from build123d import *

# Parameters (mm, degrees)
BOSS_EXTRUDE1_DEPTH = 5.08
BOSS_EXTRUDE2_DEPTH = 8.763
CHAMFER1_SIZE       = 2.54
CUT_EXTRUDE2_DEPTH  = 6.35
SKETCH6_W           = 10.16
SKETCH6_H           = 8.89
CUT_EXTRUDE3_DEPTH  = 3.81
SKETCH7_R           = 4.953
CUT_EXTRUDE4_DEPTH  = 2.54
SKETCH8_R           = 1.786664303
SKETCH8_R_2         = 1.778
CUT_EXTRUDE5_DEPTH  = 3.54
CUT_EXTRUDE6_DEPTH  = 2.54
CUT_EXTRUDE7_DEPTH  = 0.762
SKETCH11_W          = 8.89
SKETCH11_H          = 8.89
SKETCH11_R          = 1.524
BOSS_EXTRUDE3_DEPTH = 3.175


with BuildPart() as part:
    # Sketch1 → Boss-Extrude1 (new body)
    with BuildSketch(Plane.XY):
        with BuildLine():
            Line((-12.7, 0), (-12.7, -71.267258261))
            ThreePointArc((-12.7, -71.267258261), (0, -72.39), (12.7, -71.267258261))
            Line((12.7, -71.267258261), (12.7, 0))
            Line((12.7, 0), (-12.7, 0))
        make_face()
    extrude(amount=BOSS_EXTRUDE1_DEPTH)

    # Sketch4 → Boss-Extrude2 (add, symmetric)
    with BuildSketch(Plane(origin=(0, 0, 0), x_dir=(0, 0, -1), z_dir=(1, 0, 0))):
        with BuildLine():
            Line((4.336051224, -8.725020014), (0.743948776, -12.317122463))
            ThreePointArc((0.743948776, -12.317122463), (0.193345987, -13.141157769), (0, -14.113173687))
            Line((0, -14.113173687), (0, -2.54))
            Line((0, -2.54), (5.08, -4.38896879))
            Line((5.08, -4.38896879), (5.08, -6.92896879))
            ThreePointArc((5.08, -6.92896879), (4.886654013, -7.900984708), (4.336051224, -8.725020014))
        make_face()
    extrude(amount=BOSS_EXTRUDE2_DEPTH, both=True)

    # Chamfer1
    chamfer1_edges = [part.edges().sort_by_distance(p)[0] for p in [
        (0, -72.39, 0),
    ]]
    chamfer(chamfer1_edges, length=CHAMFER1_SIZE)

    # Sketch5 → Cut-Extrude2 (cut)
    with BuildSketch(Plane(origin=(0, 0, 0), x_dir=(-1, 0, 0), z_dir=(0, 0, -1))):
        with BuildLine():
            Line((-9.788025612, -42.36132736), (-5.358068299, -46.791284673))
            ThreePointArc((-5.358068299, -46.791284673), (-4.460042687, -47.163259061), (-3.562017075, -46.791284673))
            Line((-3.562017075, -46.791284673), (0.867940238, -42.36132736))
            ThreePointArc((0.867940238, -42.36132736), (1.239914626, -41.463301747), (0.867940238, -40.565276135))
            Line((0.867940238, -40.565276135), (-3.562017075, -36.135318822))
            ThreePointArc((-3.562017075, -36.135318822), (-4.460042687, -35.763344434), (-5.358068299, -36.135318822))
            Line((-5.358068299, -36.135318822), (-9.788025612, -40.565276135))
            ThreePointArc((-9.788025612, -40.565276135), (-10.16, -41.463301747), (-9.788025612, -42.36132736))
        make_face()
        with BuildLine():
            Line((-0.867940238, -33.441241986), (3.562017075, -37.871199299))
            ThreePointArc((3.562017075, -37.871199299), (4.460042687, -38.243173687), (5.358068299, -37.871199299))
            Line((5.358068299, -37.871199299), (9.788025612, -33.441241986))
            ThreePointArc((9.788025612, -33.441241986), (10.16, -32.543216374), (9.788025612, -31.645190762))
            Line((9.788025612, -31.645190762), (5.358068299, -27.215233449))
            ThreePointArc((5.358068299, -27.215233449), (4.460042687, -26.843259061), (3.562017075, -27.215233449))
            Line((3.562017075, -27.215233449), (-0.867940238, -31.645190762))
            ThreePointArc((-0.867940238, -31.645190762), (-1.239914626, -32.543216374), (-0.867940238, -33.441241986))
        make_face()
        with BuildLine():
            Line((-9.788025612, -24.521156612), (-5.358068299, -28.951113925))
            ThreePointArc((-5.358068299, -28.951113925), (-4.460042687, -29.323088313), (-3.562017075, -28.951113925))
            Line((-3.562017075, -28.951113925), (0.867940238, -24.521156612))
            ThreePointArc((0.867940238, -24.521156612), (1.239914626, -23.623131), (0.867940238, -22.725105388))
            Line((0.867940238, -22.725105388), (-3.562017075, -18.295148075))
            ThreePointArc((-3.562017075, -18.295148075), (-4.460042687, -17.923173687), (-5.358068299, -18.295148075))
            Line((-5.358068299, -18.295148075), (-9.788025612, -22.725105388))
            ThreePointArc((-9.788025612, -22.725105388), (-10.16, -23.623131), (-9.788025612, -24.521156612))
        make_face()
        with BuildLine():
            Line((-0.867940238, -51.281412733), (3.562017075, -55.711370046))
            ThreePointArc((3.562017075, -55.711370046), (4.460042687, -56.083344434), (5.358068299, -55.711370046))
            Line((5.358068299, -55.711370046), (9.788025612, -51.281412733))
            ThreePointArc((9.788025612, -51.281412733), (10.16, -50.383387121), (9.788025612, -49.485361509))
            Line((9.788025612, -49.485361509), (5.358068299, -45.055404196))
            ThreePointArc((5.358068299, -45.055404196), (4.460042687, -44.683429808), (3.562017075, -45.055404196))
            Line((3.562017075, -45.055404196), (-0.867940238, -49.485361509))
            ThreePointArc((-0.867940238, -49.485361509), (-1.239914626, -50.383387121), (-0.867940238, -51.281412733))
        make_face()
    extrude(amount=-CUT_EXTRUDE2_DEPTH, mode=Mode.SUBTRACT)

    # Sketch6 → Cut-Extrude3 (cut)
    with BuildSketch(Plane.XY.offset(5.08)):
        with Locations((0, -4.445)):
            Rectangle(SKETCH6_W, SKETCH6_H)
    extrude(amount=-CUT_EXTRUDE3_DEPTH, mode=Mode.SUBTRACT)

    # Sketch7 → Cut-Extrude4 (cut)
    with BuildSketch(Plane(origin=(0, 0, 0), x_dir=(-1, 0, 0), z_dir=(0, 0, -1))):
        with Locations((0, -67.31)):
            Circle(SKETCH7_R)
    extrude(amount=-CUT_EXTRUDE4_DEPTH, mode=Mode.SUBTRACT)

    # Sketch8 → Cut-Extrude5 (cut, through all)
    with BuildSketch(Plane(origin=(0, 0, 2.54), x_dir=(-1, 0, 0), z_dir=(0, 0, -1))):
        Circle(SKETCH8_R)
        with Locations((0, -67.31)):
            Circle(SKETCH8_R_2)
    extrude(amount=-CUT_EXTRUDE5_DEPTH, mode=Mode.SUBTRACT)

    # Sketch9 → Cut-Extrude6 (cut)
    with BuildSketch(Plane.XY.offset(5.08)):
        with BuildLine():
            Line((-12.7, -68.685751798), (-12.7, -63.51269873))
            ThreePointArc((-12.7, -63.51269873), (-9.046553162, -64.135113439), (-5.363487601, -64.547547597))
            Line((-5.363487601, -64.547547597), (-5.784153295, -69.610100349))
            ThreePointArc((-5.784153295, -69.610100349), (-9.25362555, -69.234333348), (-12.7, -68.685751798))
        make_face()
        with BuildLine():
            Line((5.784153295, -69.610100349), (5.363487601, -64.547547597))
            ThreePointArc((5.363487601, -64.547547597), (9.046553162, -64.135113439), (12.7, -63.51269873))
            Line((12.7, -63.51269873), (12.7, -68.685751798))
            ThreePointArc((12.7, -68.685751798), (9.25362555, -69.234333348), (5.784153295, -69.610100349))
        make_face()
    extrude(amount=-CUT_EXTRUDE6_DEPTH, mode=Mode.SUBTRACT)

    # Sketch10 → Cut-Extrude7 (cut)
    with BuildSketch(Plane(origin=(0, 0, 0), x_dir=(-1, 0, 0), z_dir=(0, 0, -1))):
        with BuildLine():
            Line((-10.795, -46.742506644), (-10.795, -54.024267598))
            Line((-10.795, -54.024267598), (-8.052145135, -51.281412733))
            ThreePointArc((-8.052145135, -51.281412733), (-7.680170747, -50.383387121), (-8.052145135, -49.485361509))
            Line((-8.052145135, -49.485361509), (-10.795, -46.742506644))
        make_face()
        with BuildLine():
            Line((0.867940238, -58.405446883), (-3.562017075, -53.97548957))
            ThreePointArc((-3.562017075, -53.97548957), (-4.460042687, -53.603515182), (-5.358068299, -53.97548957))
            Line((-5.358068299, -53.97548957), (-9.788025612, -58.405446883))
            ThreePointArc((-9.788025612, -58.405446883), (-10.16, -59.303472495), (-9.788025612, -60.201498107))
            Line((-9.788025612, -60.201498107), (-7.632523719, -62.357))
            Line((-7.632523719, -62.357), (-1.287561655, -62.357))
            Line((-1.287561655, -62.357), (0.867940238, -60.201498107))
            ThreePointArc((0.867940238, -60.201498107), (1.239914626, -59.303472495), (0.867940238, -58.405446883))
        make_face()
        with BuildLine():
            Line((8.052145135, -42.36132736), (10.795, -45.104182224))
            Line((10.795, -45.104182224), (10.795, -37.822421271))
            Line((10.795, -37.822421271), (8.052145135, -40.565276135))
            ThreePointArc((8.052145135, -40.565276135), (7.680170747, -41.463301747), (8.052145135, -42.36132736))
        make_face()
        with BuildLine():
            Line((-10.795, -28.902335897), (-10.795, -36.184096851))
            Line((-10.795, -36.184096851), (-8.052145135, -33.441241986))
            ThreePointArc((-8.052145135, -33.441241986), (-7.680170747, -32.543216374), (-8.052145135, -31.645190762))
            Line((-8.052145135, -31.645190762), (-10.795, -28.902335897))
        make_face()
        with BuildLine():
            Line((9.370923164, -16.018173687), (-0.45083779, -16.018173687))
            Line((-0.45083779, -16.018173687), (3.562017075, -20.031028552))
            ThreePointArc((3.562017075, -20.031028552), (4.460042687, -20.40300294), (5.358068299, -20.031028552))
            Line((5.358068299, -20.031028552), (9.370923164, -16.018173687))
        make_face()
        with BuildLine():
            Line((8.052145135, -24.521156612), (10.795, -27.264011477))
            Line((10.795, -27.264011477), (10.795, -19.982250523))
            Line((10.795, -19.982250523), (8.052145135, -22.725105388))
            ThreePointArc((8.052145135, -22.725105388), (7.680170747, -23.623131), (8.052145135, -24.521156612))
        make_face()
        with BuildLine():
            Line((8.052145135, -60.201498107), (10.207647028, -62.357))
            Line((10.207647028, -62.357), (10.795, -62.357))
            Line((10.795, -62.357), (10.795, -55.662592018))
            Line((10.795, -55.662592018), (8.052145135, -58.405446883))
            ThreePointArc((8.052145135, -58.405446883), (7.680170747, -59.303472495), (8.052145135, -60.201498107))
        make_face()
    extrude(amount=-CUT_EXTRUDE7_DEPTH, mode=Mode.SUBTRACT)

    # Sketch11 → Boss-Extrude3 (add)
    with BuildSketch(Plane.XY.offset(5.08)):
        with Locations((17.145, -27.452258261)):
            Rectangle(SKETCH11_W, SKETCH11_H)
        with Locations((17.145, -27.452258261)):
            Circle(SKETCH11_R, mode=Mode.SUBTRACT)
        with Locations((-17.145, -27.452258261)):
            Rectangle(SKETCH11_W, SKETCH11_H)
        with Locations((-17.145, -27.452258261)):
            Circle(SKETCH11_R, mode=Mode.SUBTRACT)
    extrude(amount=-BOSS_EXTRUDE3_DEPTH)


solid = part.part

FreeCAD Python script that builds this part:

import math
import FreeCAD as App
import Part
import Sketcher

V = App.Vector
Q = App.Units.Quantity


def edges_at(feature, points):
    """Names of the edges that pass closest to the given points."""
    edges = feature.Shape.Edges
    near = lambda p: min(range(len(edges)), key=lambda i: edges[i].distToShape(Part.Vertex(*p))[0])
    return sorted({f"Edge{near(p) + 1}" for p in points})

doc = App.newDocument("Part")
params = doc.addObject("Spreadsheet::Sheet", "Params")
for row, (alias, value) in enumerate([
    ("sketch1_width", "1 in"),
    ("sketch1_radius", "2.85 in"),
    ("pad1_length", "0.2 in"),
    ("sketch2_radius", "0.1 in"),
    ("sketch2_width", "0.1 in"),
    ("pad2_length", "0.69 in"),
    ("chamfer_size", "0.1 in"),
    ("sketch3_radius", "0.05 in"),
    ("pocket1_length", "0.25 in"),
    ("sketch4_width", "0.4 in"),
    ("sketch4_height", "0.35 in"),
    ("pocket2_length", "0.15 in"),
    ("sketch5_diameter", "0.39 in"),
    ("pocket3_length", "0.1 in"),
    ("sketch6_diameter", "0.14 in"),
    ("sketch7_radius", "2.75 in"),
    ("sketch7_radius2", "2.55 in"),
    ("pocket5_length", "0.1 in"),
    ("sketch8_radius", "0.05 in"),
    ("pocket6_length", "0.03 in"),
    ("sketch9_diameter", "0.12 in"),
    ("sketch9_width", "0.35 in"),
    ("pad3_length", "0.125 in"),
], start=1):
    params.set(f"A{row}", alias)
    params.set(f"B{row}", "=" + value)
    params.setAlias(f"B{row}", alias)

body = doc.addObject("PartDesign::Body", "Body")

# Sketch on XY plane
sketch1 = body.newObject("Sketcher::SketchObject", "Sketch")
sketch1.AttachmentSupport = (doc.getObject("XY_Plane"), [""])
sketch1.MapMode = "FlatFace"
sketch1.addGeometry(Part.LineSegment(V(-13, 0, 0), V(-13, -71, 0)), False)
sketch1.addGeometry(Part.ArcOfCircle(Part.Circle(V(0, 0, 0), V(0, 0, 1), 72), math.radians(-100), math.radians(-80)), False)
sketch1.addGeometry(Part.LineSegment(V(13, -71, 0), V(13, 0, 0)), False)
sketch1.addGeometry(Part.LineSegment(V(13, 0, 0), V(-13, 0, 0)), False)
sketch1.addConstraint(Sketcher.Constraint("Coincident", 0, 2, 1, 1))
sketch1.addConstraint(Sketcher.Constraint("Coincident", 1, 2, 2, 1))
sketch1.addConstraint(Sketcher.Constraint("Coincident", 2, 2, 3, 1))
sketch1.addConstraint(Sketcher.Constraint("Coincident", 3, 2, 0, 1))
sketch1.addConstraint(Sketcher.Constraint("Vertical", 0))
sketch1.addConstraint(Sketcher.Constraint("Vertical", 2))
sketch1.addConstraint(Sketcher.Constraint("Horizontal", 3))
sketch1.addConstraint(Sketcher.Constraint("Coincident", 1, 3, -1, 1))
sketch1.addConstraint(Sketcher.Constraint("Symmetric", 2, 2, 3, 2, -1, 1))
sketch1.addConstraint(Sketcher.Constraint("DistanceX", 3, 2, 3, 1, Q("1 in")))
sketch1.addConstraint(Sketcher.Constraint("Radius", 1, Q("2.85 in")))
sketch1.setExpression("Constraints[9]", "Params.sketch1_width")
sketch1.setExpression("Constraints[10]", "Params.sketch1_radius")
pad1 = body.newObject("PartDesign::Pad", "Pad")
pad1.Profile = sketch1
pad1.setExpression("Length", "Params.pad1_length")

# Sketch on YZ plane
sketch2 = body.newObject("Sketcher::SketchObject", "Sketch001")
sketch2.AttachmentSupport = (doc.getObject("YZ_Plane"), [""])
sketch2.MapMode = "FlatFace"
sketch2.addGeometry(Part.LineSegment(V(-12.3, -0.7, 0), V(-8.7, -4.3, 0)), False)
sketch2.addGeometry(Part.ArcOfCircle(Part.Circle(V(-6.9, -2.5, 0), V(0, 0, 1), 2.5), math.radians(-135), math.radians(-90)), False)
sketch2.addGeometry(Part.LineSegment(V(-6.9, -5.1, 0), V(-4.4, -5.1, 0)), False)
sketch2.addGeometry(Part.LineSegment(V(-4.4, -5.1, 0), V(-2.5, 0, 0)), False)
sketch2.addGeometry(Part.LineSegment(V(-2.5, 0, 0), V(-14.1, 0, 0)), False)
sketch2.addGeometry(Part.ArcOfCircle(Part.Circle(V(-14.1, -2.5, 0), V(0, 0, 1), 2.5), math.radians(45), math.radians(90)), False)
sketch2.addConstraint(Sketcher.Constraint("Tangent", 0, 2, 1, 1))
sketch2.addConstraint(Sketcher.Constraint("Tangent", 1, 2, 2, 1))
sketch2.addConstraint(Sketcher.Constraint("Coincident", 2, 2, 3, 1))
sketch2.addConstraint(Sketcher.Constraint("Coincident", 3, 2, 4, 1))
sketch2.addConstraint(Sketcher.Constraint("Tangent", 4, 2, 5, 2))
sketch2.addConstraint(Sketcher.Constraint("Tangent", 5, 1, 0, 1))
sketch2.addConstraint(Sketcher.Constraint("Horizontal", 2))
sketch2.addConstraint(Sketcher.Constraint("Horizontal", 4))
sketch2.addConstraint(Sketcher.Constraint("Equal", 1, 5))
sketch2.addConstraint(Sketcher.Constraint("PointOnObject", 3, 2, -1))
sketch2.addConstraint(Sketcher.Constraint("Horizontal", 1, 3, 5, 3))
sketch2.addConstraint(Sketcher.Constraint("Radius", 1, Q("0.1 in")))
sketch2.addConstraint(Sketcher.Constraint("DistanceX", 2, 1, 2, 2, Q("0.1 in")))
sketch2.addConstraint(Sketcher.Constraint("Angle", 0, Q("-45 deg")))
sketch2.addConstraint(Sketcher.Constraint("Angle", 3, Q("70 deg")))
sketch2.addConstraint(Sketcher.Constraint("DistanceX", 3, 2, -1, 1, Q("0.1 in")))
sketch2.setExpression("Constraints[11]", "Params.sketch2_radius")
sketch2.setExpression("Constraints[12]", "Params.sketch2_width")
pad2 = body.newObject("PartDesign::Pad", "Pad001")
pad2.Profile = sketch2
pad2.setExpression("Length", "Params.pad2_length")
pad2.Midplane = True
doc.recompute()

chamfer = body.newObject("PartDesign::Chamfer", "Chamfer")
chamfer.Base = (pad2, edges_at(pad2, [(0, -72.39, 0)]))
chamfer.setExpression("Size", "Params.chamfer_size")

# Sketch on XY plane
sketch3 = body.newObject("Sketcher::SketchObject", "Sketch002")
sketch3.AttachmentSupport = (doc.getObject("XY_Plane"), [""])
sketch3.MapMode = "FlatFace"
sketch3.addGeometry(Part.LineSegment(V(9.8, -42.4, 0), V(5.4, -46.8, 0)), False)
sketch3.addGeometry(Part.ArcOfCircle(Part.Circle(V(4.5, -45.9, 0), V(0, 0, 1), 1.3), math.radians(-135), math.radians(-45)), False)
sketch3.addGeometry(Part.LineSegment(V(3.6, -46.8, 0), V(-0.9, -42.4, 0)), False)
sketch3.addGeometry(Part.ArcOfCircle(Part.Circle(V(0, -41.5, 0), V(0, 0, 1), 1.3), math.radians(135), math.radians(225)), False)
sketch3.addGeometry(Part.LineSegment(V(-0.9, -40.6, 0), V(3.6, -36.1, 0)), False)
sketch3.addGeometry(Part.ArcOfCircle(Part.Circle(V(4.5, -37, 0), V(0, 0, 1), 1.3), math.radians(45), math.radians(135)), False)
sketch3.addGeometry(Part.LineSegment(V(5.4, -36.1, 0), V(9.8, -40.6, 0)), False)
sketch3.addGeometry(Part.ArcOfCircle(Part.Circle(V(8.9, -41.5, 0), V(0, 0, 1), 1.3), math.radians(-45), math.radians(45)), False)
sketch3.addGeometry(Part.LineSegment(V(0.9, -33.4, 0), V(-3.6, -37.9, 0)), False)
sketch3.addGeometry(Part.ArcOfCircle(Part.Circle(V(-4.5, -37, 0), V(0, 0, 1), 1.3), math.radians(-135), math.radians(-45)), False)
sketch3.addGeometry(Part.LineSegment(V(-5.4, -37.9, 0), V(-9.8, -33.4, 0)), False)
sketch3.addGeometry(Part.ArcOfCircle(Part.Circle(V(-8.9, -32.5, 0), V(0, 0, 1), 1.3), math.radians(135), math.radians(225)), False)
sketch3.addGeometry(Part.LineSegment(V(-9.8, -31.6, 0), V(-5.4, -27.2, 0)), False)
sketch3.addGeometry(Part.ArcOfCircle(Part.Circle(V(-4.5, -28.1, 0), V(0, 0, 1), 1.3), math.radians(45), math.radians(135)), False)
sketch3.addGeometry(Part.LineSegment(V(-3.6, -27.2, 0), V(0.9, -31.6, 0)), False)
sketch3.addGeometry(Part.ArcOfCircle(Part.Circle(V(0, -32.5, 0), V(0, 0, 1), 1.3), math.radians(-45), math.radians(45)), False)
sketch3.addGeometry(Part.LineSegment(V(9.8, -24.5, 0), V(5.4, -29, 0)), False)
sketch3.addGeometry(Part.ArcOfCircle(Part.Circle(V(4.5, -28.1, 0), V(0, 0, 1), 1.3), math.radians(-135), math.radians(-45)), False)
sketch3.addGeometry(Part.LineSegment(V(3.6, -29, 0), V(-0.9, -24.5, 0)), False)
sketch3.addGeometry(Part.ArcOfCircle(Part.Circle(V(0, -23.6, 0), V(0, 0, 1), 1.3), math.radians(135), math.radians(225)), False)
sketch3.addGeometry(Part.LineSegment(V(-0.9, -22.7, 0), V(3.6, -18.3, 0)), False)
sketch3.addGeometry(Part.ArcOfCircle(Part.Circle(V(4.5, -19.2, 0), V(0, 0, 1), 1.3), math.radians(45), math.radians(135)), False)
sketch3.addGeometry(Part.LineSegment(V(5.4, -18.3, 0), V(9.8, -22.7, 0)), False)
sketch3.addGeometry(Part.ArcOfCircle(Part.Circle(V(8.9, -23.6, 0), V(0, 0, 1), 1.3), math.radians(-45), math.radians(45)), False)
sketch3.addGeometry(Part.LineSegment(V(0.9, -51.3, 0), V(-3.6, -55.7, 0)), False)
sketch3.addGeometry(Part.ArcOfCircle(Part.Circle(V(-4.5, -54.8, 0), V(0, 0, 1), 1.3), math.radians(-135), math.radians(-45)), False)
sketch3.addGeometry(Part.LineSegment(V(-5.4, -55.7, 0), V(-9.8, -51.3, 0)), False)
sketch3.addGeometry(Part.ArcOfCircle(Part.Circle(V(-8.9, -50.4, 0), V(0, 0, 1), 1.3), math.radians(135), math.radians(225)), False)
sketch3.addGeometry(Part.LineSegment(V(-9.8, -49.5, 0), V(-5.4, -45.1, 0)), False)
sketch3.addGeometry(Part.ArcOfCircle(Part.Circle(V(-4.5, -46, 0), V(0, 0, 1), 1.3), math.radians(45), math.radians(135)), False)
sketch3.addGeometry(Part.LineSegment(V(-3.6, -45.1, 0), V(0.9, -49.5, 0)), False)
sketch3.addGeometry(Part.ArcOfCircle(Part.Circle(V(0, -50.4, 0), V(0, 0, 1), 1.3), math.radians(-45), math.radians(45)), False)
sketch3.addConstraint(Sketcher.Constraint("Tangent", 0, 2, 1, 2))
sketch3.addConstraint(Sketcher.Constraint("Tangent", 1, 1, 2, 1))
sketch3.addConstraint(Sketcher.Constraint("Tangent", 2, 2, 3, 2))
sketch3.addConstraint(Sketcher.Constraint("Tangent", 3, 1, 4, 1))
sketch3.addConstraint(Sketcher.Constraint("Tangent", 4, 2, 5, 2))
sketch3.addConstraint(Sketcher.Constraint("Tangent", 5, 1, 6, 1))
sketch3.addConstraint(Sketcher.Constraint("Tangent", 6, 2, 7, 2))
sketch3.addConstraint(Sketcher.Constraint("Tangent", 7, 1, 0, 1))
sketch3.addConstraint(Sketcher.Constraint("Tangent", 8, 2, 9, 2))
sketch3.addConstraint(Sketcher.Constraint("Tangent", 9, 1, 10, 1))
sketch3.addConstraint(Sketcher.Constraint("Tangent", 10, 2, 11, 2))
sketch3.addConstraint(Sketcher.Constraint("Tangent", 11, 1, 12, 1))
sketch3.addConstraint(Sketcher.Constraint("Tangent", 12, 2, 13, 2))
sketch3.addConstraint(Sketcher.Constraint("Tangent", 13, 1, 14, 1))
sketch3.addConstraint(Sketcher.Constraint("Tangent", 14, 2, 15, 2))
sketch3.addConstraint(Sketcher.Constraint("Tangent", 15, 1, 8, 1))
sketch3.addConstraint(Sketcher.Constraint("Tangent", 16, 2, 17, 2))
sketch3.addConstraint(Sketcher.Constraint("Tangent", 17, 1, 18, 1))
sketch3.addConstraint(Sketcher.Constraint("Tangent", 18, 2, 19, 2))
sketch3.addConstraint(Sketcher.Constraint("Tangent", 19, 1, 20, 1))
sketch3.addConstraint(Sketcher.Constraint("Tangent", 20, 2, 21, 2))
sketch3.addConstraint(Sketcher.Constraint("Tangent", 21, 1, 22, 1))
sketch3.addConstraint(Sketcher.Constraint("Tangent", 22, 2, 23, 2))
sketch3.addConstraint(Sketcher.Constraint("Tangent", 23, 1, 16, 1))
sketch3.addConstraint(Sketcher.Constraint("Tangent", 24, 2, 25, 2))
sketch3.addConstraint(Sketcher.Constraint("Tangent", 25, 1, 26, 1))
sketch3.addConstraint(Sketcher.Constraint("Tangent", 26, 2, 27, 2))
sketch3.addConstraint(Sketcher.Constraint("Tangent", 27, 1, 28, 1))
sketch3.addConstraint(Sketcher.Constraint("Tangent", 28, 2, 29, 2))
sketch3.addConstraint(Sketcher.Constraint("Tangent", 29, 1, 30, 1))
sketch3.addConstraint(Sketcher.Constraint("Tangent", 30, 2, 31, 2))
sketch3.addConstraint(Sketcher.Constraint("Tangent", 31, 1, 24, 1))
sketch3.addConstraint(Sketcher.Constraint("Equal", 1, 3))
sketch3.addConstraint(Sketcher.Constraint("Equal", 3, 5))
sketch3.addConstraint(Sketcher.Constraint("Equal", 5, 7))
sketch3.addConstraint(Sketcher.Constraint("Equal", 7, 9))
sketch3.addConstraint(Sketcher.Constraint("Equal", 9, 11))
sketch3.addConstraint(Sketcher.Constraint("Equal", 11, 13))
sketch3.addConstraint(Sketcher.Constraint("Equal", 13, 15))
sketch3.addConstraint(Sketcher.Constraint("Equal", 15, 17))
sketch3.addConstraint(Sketcher.Constraint("Equal", 17, 19))
sketch3.addConstraint(Sketcher.Constraint("Equal", 19, 21))
sketch3.addConstraint(Sketcher.Constraint("Equal", 21, 23))
sketch3.addConstraint(Sketcher.Constraint("Equal", 23, 25))
sketch3.addConstraint(Sketcher.Constraint("Equal", 25, 27))
sketch3.addConstraint(Sketcher.Constraint("Equal", 27, 29))
sketch3.addConstraint(Sketcher.Constraint("Equal", 29, 31))
sketch3.addConstraint(Sketcher.Constraint("Perpendicular", 0, 2))
sketch3.addConstraint(Sketcher.Constraint("Perpendicular", 2, 4))
sketch3.addConstraint(Sketcher.Constraint("Perpendicular", 4, 6))
sketch3.addConstraint(Sketcher.Constraint("Perpendicular", 6, 8))
sketch3.addConstraint(Sketcher.Constraint("Perpendicular", 8, 10))
sketch3.addConstraint(Sketcher.Constraint("Perpendicular", 10, 12))
sketch3.addConstraint(Sketcher.Constraint("Perpendicular", 12, 14))
sketch3.addConstraint(Sketcher.Constraint("Perpendicular", 14, 16))
sketch3.addConstraint(Sketcher.Constraint("Perpendicular", 16, 18))
sketch3.addConstraint(Sketcher.Constraint("Perpendicular", 18, 20))
sketch3.addConstraint(Sketcher.Constraint("Perpendicular", 20, 22))
sketch3.addConstraint(Sketcher.Constraint("Perpendicular", 22, 24))
sketch3.addConstraint(Sketcher.Constraint("Perpendicular", 24, 26))
sketch3.addConstraint(Sketcher.Constraint("Perpendicular", 26, 28))
sketch3.addConstraint(Sketcher.Constraint("Perpendicular", 28, 30))
sketch3.addConstraint(Sketcher.Constraint("Horizontal", 3, 3, 7, 3))
sketch3.addConstraint(Sketcher.Constraint("Horizontal", 11, 3, 15, 3))
sketch3.addConstraint(Sketcher.Constraint("Horizontal", 19, 3, 23, 3))
sketch3.addConstraint(Sketcher.Constraint("Horizontal", 27, 3, 31, 3))
sketch3.addConstraint(Sketcher.Constraint("Horizontal", 0, 2, 1, 1))
sketch3.addConstraint(Sketcher.Constraint("Vertical", 5, 3, 17, 3))
sketch3.addConstraint(Sketcher.Constraint("Vertical", 3, 3, 19, 3))
sketch3.addConstraint(Sketcher.Constraint("Vertical", 13, 3, 25, 3))
sketch3.addConstraint(Sketcher.Constraint("Vertical", 11, 3, 27, 3))
sketch3.addConstraint(Sketcher.Constraint("Equal", 6, 8))
sketch3.addConstraint(Sketcher.Constraint("Radius", 1, Q("0.05 in")))
sketch3.addConstraint(Sketcher.Constraint("DistanceX", 11, 3, 7, 3, Q("0.7 in")))
sketch3.addConstraint(Sketcher.Constraint("DistanceY", 25, 3, 5, 3, Q("0.7 in")))
sketch3.addConstraint(Sketcher.Constraint("DistanceX", -1, 1, 7, 3, Q("0.35 in")))
sketch3.addConstraint(Sketcher.Constraint("DistanceY", 18, 2, -1, 1, Q("0.9653999 in")))
sketch3.addConstraint(Sketcher.Constraint("DistanceY", 3, 3, -1, 1, Q("41.463302 mm")))
sketch3.addConstraint(Sketcher.Constraint("DistanceY", 8, 2, -1, 1, Q("37.871199 mm")))
sketch3.addConstraint(Sketcher.Constraint("DistanceY", 1, 3, -1, 1, Q("45.893259 mm")))
sketch3.setExpression("Constraints[72]", "Params.sketch3_radius")
pocket1 = body.newObject("PartDesign::Pocket", "Pocket")
pocket1.Profile = sketch3
pocket1.setExpression("Length", "Params.pocket1_length")
pocket1.Reversed = True

# Sketch on XY plane
sketch4 = body.newObject("Sketcher::SketchObject", "Sketch003")
sketch4.AttachmentSupport = (doc.getObject("XY_Plane"), [""])
sketch4.MapMode = "FlatFace"
sketch4.AttachmentOffset = App.Placement(V(0, 0, 0.2 * 25.4), App.Rotation())
sketch4.addGeometry(Part.LineSegment(V(-5, 0, 0), V(-5, -9, 0)), False)
sketch4.addGeometry(Part.LineSegment(V(-5, -9, 0), V(5, -9, 0)), False)
sketch4.addGeometry(Part.LineSegment(V(5, -9, 0), V(5, 0, 0)), False)
sketch4.addGeometry(Part.LineSegment(V(5, 0, 0), V(-5, 0, 0)), False)
sketch4.addConstraint(Sketcher.Constraint("Coincident", 0, 2, 1, 1))
sketch4.addConstraint(Sketcher.Constraint("Coincident", 1, 2, 2, 1))
sketch4.addConstraint(Sketcher.Constraint("Coincident", 2, 2, 3, 1))
sketch4.addConstraint(Sketcher.Constraint("Coincident", 3, 2, 0, 1))
sketch4.addConstraint(Sketcher.Constraint("Vertical", 0))
sketch4.addConstraint(Sketcher.Constraint("Horizontal", 1))
sketch4.addConstraint(Sketcher.Constraint("Vertical", 2))
sketch4.addConstraint(Sketcher.Constraint("Horizontal", 3))
sketch4.addConstraint(Sketcher.Constraint("Symmetric", 2, 2, 3, 2, -1, 1))
sketch4.addConstraint(Sketcher.Constraint("DistanceX", 1, 1, 1, 2, Q("0.4 in")))
sketch4.addConstraint(Sketcher.Constraint("DistanceY", 0, 2, 0, 1, Q("0.35 in")))
sketch4.setExpression("Constraints[9]", "Params.sketch4_width")
sketch4.setExpression("Constraints[10]", "Params.sketch4_height")
pocket2 = body.newObject("PartDesign::Pocket", "Pocket001")
pocket2.Profile = sketch4
pocket2.setExpression("Length", "Params.pocket2_length")

# Sketch on XY plane
sketch5 = body.newObject("Sketcher::SketchObject", "Sketch004")
sketch5.AttachmentSupport = (doc.getObject("XY_Plane"), [""])
sketch5.MapMode = "FlatFace"
sketch5.addGeometry(Part.Circle(V(0, -67.3, 0), V(0, 0, 1), 5), False)
sketch5.addConstraint(Sketcher.Constraint("PointOnObject", 0, 3, -2))
sketch5.addConstraint(Sketcher.Constraint("Diameter", 0, Q("0.39 in")))
sketch5.addConstraint(Sketcher.Constraint("DistanceY", 0, 3, -1, 1, Q("2.65 in")))
sketch5.setExpression("Constraints[1]", "Params.sketch5_diameter")
pocket3 = body.newObject("PartDesign::Pocket", "Pocket002")
pocket3.Profile = sketch5
pocket3.setExpression("Length", "Params.pocket3_length")
pocket3.Reversed = True

# Sketch on XY plane
sketch6 = body.newObject("Sketcher::SketchObject", "Sketch005")
sketch6.AttachmentSupport = (doc.getObject("XY_Plane"), [""])
sketch6.MapMode = "FlatFace"
sketch6.AttachmentOffset = App.Placement(V(0, 0, 0.1 * 25.4), App.Rotation())
sketch6.addGeometry(Part.Circle(V(0, 0, 0), V(0, 0, 1), 1.8), False)
sketch6.addGeometry(Part.Circle(V(0, -67.3, 0), V(0, 0, 1), 1.8), False)
sketch6.addConstraint(Sketcher.Constraint("Coincident", 0, 3, -1, 1))
sketch6.addConstraint(Sketcher.Constraint("PointOnObject", 1, 3, -2))
sketch6.addConstraint(Sketcher.Constraint("Diameter", 1, Q("0.14 in")))
sketch6.addConstraint(Sketcher.Constraint("DistanceY", 1, 3, -1, 1, Q("2.65 in")))
sketch6.addConstraint(Sketcher.Constraint("Diameter", 0, Q("3.573329 mm")))
sketch6.setExpression("Constraints[2]", "Params.sketch6_diameter")
pocket4 = body.newObject("PartDesign::Pocket", "Pocket003")
pocket4.Profile = sketch6
pocket4.Type = "ThroughAll"
pocket4.Reversed = True

# Sketch on XY plane
sketch7 = body.newObject("Sketcher::SketchObject", "Sketch006")
sketch7.AttachmentSupport = (doc.getObject("XY_Plane"), [""])
sketch7.MapMode = "FlatFace"
sketch7.AttachmentOffset = App.Placement(V(0, 0, 0.2 * 25.4), App.Rotation())
sketch7.addGeometry(Part.LineSegment(V(-13, -64, 0), V(-13, -69, 0)), False)
sketch7.addGeometry(Part.ArcOfCircle(Part.Circle(V(0, 0, 0), V(0, 0, 1), 70), math.radians(-100.48), math.radians(-94.75)), False)
sketch7.addGeometry(Part.LineSegment(V(-6, -70, 0), V(-5, -65, 0)), False)
sketch7.addGeometry(Part.ArcOfCircle(Part.Circle(V(0, 0, 0), V(0, 0, 1), 65), math.radians(-101.31), math.radians(-94.75)), False)
sketch7.addGeometry(Part.LineSegment(V(5, -65, 0), V(6, -70, 0)), False)
sketch7.addGeometry(Part.ArcOfCircle(Part.Circle(V(0, 0, 0), V(0, 0, 1), 70), math.radians(-85.25), math.radians(-79.52)), False)
sketch7.addGeometry(Part.LineSegment(V(13, -69, 0), V(13, -64, 0)), False)
sketch7.addGeometry(Part.ArcOfCircle(Part.Circle(V(0, 0, 0), V(0, 0, 1), 65), math.radians(-85.25), math.radians(-78.69)), False)
sketch7.addConstraint(Sketcher.Constraint("Coincident", 0, 2, 1, 1))
sketch7.addConstraint(Sketcher.Constraint("Coincident", 1, 2, 2, 1))
sketch7.addConstraint(Sketcher.Constraint("Coincident", 2, 2, 3, 2))
sketch7.addConstraint(Sketcher.Constraint("Coincident", 3, 1, 0, 1))
sketch7.addConstraint(Sketcher.Constraint("Coincident", 4, 2, 5, 1))
sketch7.addConstraint(Sketcher.Constraint("Coincident", 5, 2, 6, 1))
sketch7.addConstraint(Sketcher.Constraint("Coincident", 6, 2, 7, 2))
sketch7.addConstraint(Sketcher.Constraint("Coincident", 7, 1, 4, 1))
sketch7.addConstraint(Sketcher.Constraint("Vertical", 0))
sketch7.addConstraint(Sketcher.Constraint("Vertical", 6))
sketch7.addConstraint(Sketcher.Constraint("Coincident", 1, 3, -1, 1))
sketch7.addConstraint(Sketcher.Constraint("Coincident", 3, 3, -1, 1))
sketch7.addConstraint(Sketcher.Constraint("Coincident", 5, 3, -1, 1))
sketch7.addConstraint(Sketcher.Constraint("Coincident", 7, 3, -1, 1))
sketch7.addConstraint(Sketcher.Constraint("Equal", 1, 5))
sketch7.addConstraint(Sketcher.Constraint("Equal", 3, 7))
sketch7.addConstraint(Sketcher.Constraint("Horizontal", 1, 2, 4, 2))
sketch7.addConstraint(Sketcher.Constraint("Horizontal", 0, 2, 5, 2))
sketch7.addConstraint(Sketcher.Constraint("Horizontal", 2, 2, 7, 1))
sketch7.addConstraint(Sketcher.Constraint("Radius", 1, Q("2.75 in")))
sketch7.addConstraint(Sketcher.Constraint("Radius", 3, Q("2.55 in")))
sketch7.addConstraint(Sketcher.Constraint("DistanceX", 0, 2, 5, 2, Q("1 in")))
sketch7.addConstraint(Sketcher.Constraint("Angle", 2, Q("85.25 deg")))
sketch7.addConstraint(Sketcher.Constraint("DistanceY", 1, 2, -1, 1, Q("69.6101 mm")))
sketch7.setExpression("Constraints[19]", "Params.sketch7_radius")
sketch7.setExpression("Constraints[20]", "Params.sketch7_radius2")
pocket5 = body.newObject("PartDesign::Pocket", "Pocket004")
pocket5.Profile = sketch7
pocket5.setExpression("Length", "Params.pocket5_length")

# Sketch on XY plane
sketch8 = body.newObject("Sketcher::SketchObject", "Sketch007")
sketch8.AttachmentSupport = (doc.getObject("XY_Plane"), [""])
sketch8.MapMode = "FlatFace"
sketch8.addGeometry(Part.LineSegment(V(10.8, -46.7, 0), V(10.8, -54, 0)), False)
sketch8.addGeometry(Part.LineSegment(V(10.8, -54, 0), V(8.1, -51.3, 0)), False)
sketch8.addGeometry(Part.ArcOfCircle(Part.Circle(V(9, -50.4, 0), V(0, 0, 1), 1.3), math.radians(135), math.radians(225)), False)
sketch8.addGeometry(Part.LineSegment(V(8.1, -49.5, 0), V(10.8, -46.7, 0)), False)
sketch8.addGeometry(Part.LineSegment(V(-0.9, -58.4, 0), V(3.6, -54, 0)), False)
sketch8.addGeometry(Part.ArcOfCircle(Part.Circle(V(4.5, -54.9, 0), V(0, 0, 1), 1.3), math.radians(45), math.radians(135)), False)
sketch8.addGeometry(Part.LineSegment(V(5.4, -54, 0), V(9.8, -58.4, 0)), False)
sketch8.addGeometry(Part.ArcOfCircle(Part.Circle(V(8.9, -59.3, 0), V(0, 0, 1), 1.3), math.radians(-45), math.radians(45)), False)
sketch8.addGeometry(Part.LineSegment(V(9.8, -60.2, 0), V(7.6, -62.4, 0)), False)
sketch8.addGeometry(Part.LineSegment(V(7.6, -62.4, 0), V(1.3, -62.4, 0)), False)
sketch8.addGeometry(Part.LineSegment(V(1.3, -62.4, 0), V(-0.9, -60.2, 0)), False)
sketch8.addGeometry(Part.ArcOfCircle(Part.Circle(V(0, -59.3, 0), V(0, 0, 1), 1.3), math.radians(135), math.radians(225)), False)
sketch8.addGeometry(Part.LineSegment(V(-8.1, -42.4, 0), V(-10.8, -45.1, 0)), False)
sketch8.addGeometry(Part.LineSegment(V(-10.8, -45.1, 0), V(-10.8, -37.8, 0)), False)
sketch8.addGeometry(Part.LineSegment(V(-10.8, -37.8, 0), V(-8.1, -40.6, 0)), False)
sketch8.addGeometry(Part.ArcOfCircle(Part.Circle(V(-9, -41.5, 0), V(0, 0, 1), 1.3), math.radians(-45), math.radians(45)), False)
sketch8.addGeometry(Part.LineSegment(V(10.8, -28.9, 0), V(10.8, -36.2, 0)), False)
sketch8.addGeometry(Part.LineSegment(V(10.8, -36.2, 0), V(8.1, -33.4, 0)), False)
sketch8.addGeometry(Part.ArcOfCircle(Part.Circle(V(9, -32.5, 0), V(0, 0, 1), 1.3), math.radians(135), math.radians(225)), False)
sketch8.addGeometry(Part.LineSegment(V(8.1, -31.6, 0), V(10.8, -28.9, 0)), False)
sketch8.addGeometry(Part.LineSegment(V(-9.4, -16, 0), V(0.5, -16, 0)), False)
sketch8.addGeometry(Part.LineSegment(V(0.5, -16, 0), V(-3.6, -20, 0)), False)
sketch8.addGeometry(Part.ArcOfCircle(Part.Circle(V(-4.5, -19.1, 0), V(0, 0, 1), 1.3), math.radians(-135), math.radians(-45)), False)
sketch8.addGeometry(Part.LineSegment(V(-5.4, -20, 0), V(-9.4, -16, 0)), False)
sketch8.addGeometry(Part.LineSegment(V(-8.1, -24.5, 0), V(-10.8, -27.3, 0)), False)
sketch8.addGeometry(Part.LineSegment(V(-10.8, -27.3, 0), V(-10.8, -20, 0)), False)
sketch8.addGeometry(Part.LineSegment(V(-10.8, -20, 0), V(-8.1, -22.7, 0)), False)
sketch8.addGeometry(Part.ArcOfCircle(Part.Circle(V(-9, -23.6, 0), V(0, 0, 1), 1.3), math.radians(-45), math.radians(45)), False)
sketch8.addGeometry(Part.LineSegment(V(-8.1, -60.2, 0), V(-10.2, -62.4, 0)), False)
sketch8.addGeometry(Part.LineSegment(V(-10.2, -62.4, 0), V(-10.8, -62.4, 0)), False)
sketch8.addGeometry(Part.LineSegment(V(-10.8, -62.4, 0), V(-10.8, -55.7, 0)), False)
sketch8.addGeometry(Part.LineSegment(V(-10.8, -55.7, 0), V(-8.1, -58.4, 0)), False)
sketch8.addGeometry(Part.ArcOfCircle(Part.Circle(V(-9, -59.3, 0), V(0, 0, 1), 1.3), math.radians(-45), math.radians(45)), False)
sketch8.addConstraint(Sketcher.Constraint("Coincident", 0, 2, 1, 1))
sketch8.addConstraint(Sketcher.Constraint("Tangent", 1, 2, 2, 2))
sketch8.addConstraint(Sketcher.Constraint("Tangent", 2, 1, 3, 1))
sketch8.addConstraint(Sketcher.Constraint("Coincident", 3, 2, 0, 1))
sketch8.addConstraint(Sketcher.Constraint("Tangent", 4, 2, 5, 2))
sketch8.addConstraint(Sketcher.Constraint("Tangent", 5, 1, 6, 1))
sketch8.addConstraint(Sketcher.Constraint("Tangent", 6, 2, 7, 2))
sketch8.addConstraint(Sketcher.Constraint("Tangent", 7, 1, 8, 1))
sketch8.addConstraint(Sketcher.Constraint("Coincident", 8, 2, 9, 1))
sketch8.addConstraint(Sketcher.Constraint("Coincident", 9, 2, 10, 1))
sketch8.addConstraint(Sketcher.Constraint("Tangent", 10, 2, 11, 2))
sketch8.addConstraint(Sketcher.Constraint("Tangent", 11, 1, 4, 1))
sketch8.addConstraint(Sketcher.Constraint("Coincident", 12, 2, 13, 1))
sketch8.addConstraint(Sketcher.Constraint("Coincident", 13, 2, 14, 1))
sketch8.addConstraint(Sketcher.Constraint("Tangent", 14, 2, 15, 2))
sketch8.addConstraint(Sketcher.Constraint("Tangent", 15, 1, 12, 1))
sketch8.addConstraint(Sketcher.Constraint("Coincident", 16, 2, 17, 1))
sketch8.addConstraint(Sketcher.Constraint("Tangent", 17, 2, 18, 2))
sketch8.addConstraint(Sketcher.Constraint("Tangent", 18, 1, 19, 1))
sketch8.addConstraint(Sketcher.Constraint("Coincident", 19, 2, 16, 1))
sketch8.addConstraint(Sketcher.Constraint("Coincident", 20, 2, 21, 1))
sketch8.addConstraint(Sketcher.Constraint("Tangent", 21, 2, 22, 2))
sketch8.addConstraint(Sketcher.Constraint("Tangent", 22, 1, 23, 1))
sketch8.addConstraint(Sketcher.Constraint("Coincident", 23, 2, 20, 1))
sketch8.addConstraint(Sketcher.Constraint("Coincident", 24, 2, 25, 1))
sketch8.addConstraint(Sketcher.Constraint("Coincident", 25, 2, 26, 1))
sketch8.addConstraint(Sketcher.Constraint("Tangent", 26, 2, 27, 2))
sketch8.addConstraint(Sketcher.Constraint("Tangent", 27, 1, 24, 1))
sketch8.addConstraint(Sketcher.Constraint("Coincident", 28, 2, 29, 1))
sketch8.addConstraint(Sketcher.Constraint("Coincident", 29, 2, 30, 1))
sketch8.addConstraint(Sketcher.Constraint("Coincident", 30, 2, 31, 1))
sketch8.addConstraint(Sketcher.Constraint("Tangent", 31, 2, 32, 2))
sketch8.addConstraint(Sketcher.Constraint("Tangent", 32, 1, 28, 1))
sketch8.addConstraint(Sketcher.Constraint("Vertical", 0))
sketch8.addConstraint(Sketcher.Constraint("Horizontal", 9))
sketch8.addConstraint(Sketcher.Constraint("Vertical", 13))
sketch8.addConstraint(Sketcher.Constraint("Vertical", 16))
sketch8.addConstraint(Sketcher.Constraint("Horizontal", 20))
sketch8.addConstraint(Sketcher.Constraint("Vertical", 25))
sketch8.addConstraint(Sketcher.Constraint("Horizontal", 29))
sketch8.addConstraint(Sketcher.Constraint("Vertical", 30))
sketch8.addConstraint(Sketcher.Constraint("Equal", 2, 5))
sketch8.addConstraint(Sketcher.Constraint("Equal", 5, 7))
sketch8.addConstraint(Sketcher.Constraint("Equal", 7, 11))
sketch8.addConstraint(Sketcher.Constraint("Equal", 11, 15))
sketch8.addConstraint(Sketcher.Constraint("Equal", 15, 18))
sketch8.addConstraint(Sketcher.Constraint("Equal", 18, 22))
sketch8.addConstraint(Sketcher.Constraint("Equal", 22, 27))
sketch8.addConstraint(Sketcher.Constraint("Equal", 27, 32))
sketch8.addConstraint(Sketcher.Constraint("Perpendicular", 1, 3))
sketch8.addConstraint(Sketcher.Constraint("Parallel", 3, 4))
sketch8.addConstraint(Sketcher.Constraint("Perpendicular", 4, 6))
sketch8.addConstraint(Sketcher.Constraint("Perpendicular", 6, 8))
sketch8.addConstraint(Sketcher.Constraint("Perpendicular", 8, 10))
sketch8.addConstraint(Sketcher.Constraint("Perpendicular", 10, 12))
sketch8.addConstraint(Sketcher.Constraint("Perpendicular", 12, 14))
sketch8.addConstraint(Sketcher.Constraint("Parallel", 14, 17))
sketch8.addConstraint(Sketcher.Constraint("Perpendicular", 17, 19))
sketch8.addConstraint(Sketcher.Constraint("Parallel", 19, 21))
sketch8.addConstraint(Sketcher.Constraint("Perpendicular", 21, 23))
sketch8.addConstraint(Sketcher.Constraint("Perpendicular", 23, 24))
sketch8.addConstraint(Sketcher.Constraint("Perpendicular", 24, 26))
sketch8.addConstraint(Sketcher.Constraint("Perpendicular", 26, 28))
sketch8.addConstraint(Sketcher.Constraint("Perpendicular", 28, 31))
sketch8.addConstraint(Sketcher.Constraint("Horizontal", 7, 3, 11, 3))
sketch8.addConstraint(Sketcher.Constraint("Horizontal", 11, 3, 32, 3))
sketch8.addConstraint(Sketcher.Constraint("Horizontal", 4, 2, 5, 1))
sketch8.addConstraint(Sketcher.Constraint("Horizontal", 9, 2, 28, 2))
sketch8.addConstraint(Sketcher.Constraint("Vertical", 2, 3, 18, 3))
sketch8.addConstraint(Sketcher.Constraint("Vertical", 15, 3, 27, 3))
sketch8.addConstraint(Sketcher.Constraint("Vertical", 27, 3, 32, 3))
sketch8.addConstraint(Sketcher.Constraint("Vertical", 3, 2, 16, 2))
sketch8.addConstraint(Sketcher.Constraint("Vertical", 13, 2, 24, 2))
sketch8.addConstraint(Sketcher.Constraint("Vertical", 25, 2, 29, 2))
sketch8.addConstraint(Sketcher.Constraint("Equal", 0, 13))
sketch8.addConstraint(Sketcher.Constraint("Radius", 2, Q("0.05 in")))
sketch8.addConstraint(Sketcher.Constraint("DistanceX", -1, 1, 7, 3, Q("0.35 in")))
sketch8.addConstraint(Sketcher.Constraint("DistanceX", -1, 1, 0, 2, Q("0.425 in")))
sketch8.addConstraint(Sketcher.Constraint("DistanceY", 8, 2, -1, 1, Q("2.455 in")))
sketch8.addConstraint(Sketcher.Constraint("DistanceX", 12, 2, -1, 1, Q("0.425 in")))
sketch8.addConstraint(Sketcher.Constraint("DistanceY", 27, 1, -1, 1, Q("0.9653999 in")))
sketch8.addConstraint(Sketcher.Constraint("DistanceX", 20, 1, 20, 2, Q("9.821761 mm")))
sketch8.addConstraint(Sketcher.Constraint("DistanceY", 0, 2, 0, 1, Q("7.281761 mm")))
sketch8.addConstraint(Sketcher.Constraint("DistanceY", 15, 3, -1, 1, Q("41.463302 mm")))
sketch8.addConstraint(Sketcher.Constraint("DistanceY", 7, 1, -1, 1, Q("60.201498 mm")))
sketch8.addConstraint(Sketcher.Constraint("DistanceY", 5, 3, 18, 3, Q("22.330299 mm")))
sketch8.addConstraint(Sketcher.Constraint("DistanceY", 15, 3, 22, 3, Q("22.330299 mm")))
sketch8.addConstraint(Sketcher.Constraint("DistanceX", 9, 2, 9, 1, Q("6.344962 mm")))
sketch8.addConstraint(Sketcher.Constraint("DistanceY", 2, 1, -1, 1, Q("49.485362 mm")))
sketch8.addConstraint(Sketcher.Constraint("DistanceX", 22, 1, -1, 1, Q("5.358068 mm")))
sketch8.setExpression("Constraints[75]", "Params.sketch8_radius")
pocket6 = body.newObject("PartDesign::Pocket", "Pocket005")
pocket6.Profile = sketch8
pocket6.setExpression("Length", "Params.pocket6_length")
pocket6.Reversed = True

# Sketch on XY plane
sketch9 = body.newObject("Sketcher::SketchObject", "Sketch008")
sketch9.AttachmentSupport = (doc.getObject("XY_Plane"), [""])
sketch9.MapMode = "FlatFace"
sketch9.AttachmentOffset = App.Placement(V(0, 0, 0.2 * 25.4), App.Rotation())
sketch9.addGeometry(Part.LineSegment(V(12.7, -23, 0), V(12.7, -31.9, 0)), False)
sketch9.addGeometry(Part.LineSegment(V(12.7, -31.9, 0), V(21.6, -31.9, 0)), False)
sketch9.addGeometry(Part.LineSegment(V(21.6, -31.9, 0), V(21.6, -23, 0)), False)
sketch9.addGeometry(Part.LineSegment(V(21.6, -23, 0), V(12.7, -23, 0)), False)
sketch9.addGeometry(Part.Circle(V(17.1, -27.5, 0), V(0, 0, 1), 1.5), False)
sketch9.addGeometry(Part.LineSegment(V(-21.6, -23, 0), V(-21.6, -31.9, 0)), False)
sketch9.addGeometry(Part.LineSegment(V(-21.6, -31.9, 0), V(-12.7, -31.9, 0)), False)
sketch9.addGeometry(Part.LineSegment(V(-12.7, -31.9, 0), V(-12.7, -23, 0)), False)
sketch9.addGeometry(Part.LineSegment(V(-12.7, -23, 0), V(-21.6, -23, 0)), False)
sketch9.addGeometry(Part.Circle(V(-17.1, -27.5, 0), V(0, 0, 1), 1.5), False)
sketch9.addConstraint(Sketcher.Constraint("Coincident", 0, 2, 1, 1))
sketch9.addConstraint(Sketcher.Constraint("Coincident", 1, 2, 2, 1))
sketch9.addConstraint(Sketcher.Constraint("Coincident", 2, 2, 3, 1))
sketch9.addConstraint(Sketcher.Constraint("Coincident", 3, 2, 0, 1))
sketch9.addConstraint(Sketcher.Constraint("Coincident", 5, 2, 6, 1))
sketch9.addConstraint(Sketcher.Constraint("Coincident", 6, 2, 7, 1))
sketch9.addConstraint(Sketcher.Constraint("Coincident", 7, 2, 8, 1))
sketch9.addConstraint(Sketcher.Constraint("Coincident", 8, 2, 5, 1))
sketch9.addConstraint(Sketcher.Constraint("Vertical", 0))
sketch9.addConstraint(Sketcher.Constraint("Horizontal", 1))
sketch9.addConstraint(Sketcher.Constraint("Vertical", 2))
sketch9.addConstraint(Sketcher.Constraint("Horizontal", 3))
sketch9.addConstraint(Sketcher.Constraint("Vertical", 5))
sketch9.addConstraint(Sketcher.Constraint("Horizontal", 6))
sketch9.addConstraint(Sketcher.Constraint("Vertical", 7))
sketch9.addConstraint(Sketcher.Constraint("Horizontal", 8))
sketch9.addConstraint(Sketcher.Constraint("Equal", 4, 9))
sketch9.addConstraint(Sketcher.Constraint("Symmetric", 4, 3, 9, 3, -2))
sketch9.addConstraint(Sketcher.Constraint("Symmetric", 1, 2, 5, 2, -2))
sketch9.addConstraint(Sketcher.Constraint("Symmetric", 3, 2, 7, 2, -2))
sketch9.addConstraint(Sketcher.Constraint("Equal", 8, 0))
sketch9.addConstraint(Sketcher.Constraint("Diameter", 4, Q("0.12 in")))
sketch9.addConstraint(Sketcher.Constraint("DistanceX", 6, 2, 0, 2, Q("1 in")))
sketch9.addConstraint(Sketcher.Constraint("DistanceX", 1, 1, 1, 2, Q("0.35 in")))
sketch9.addConstraint(Sketcher.Constraint("DistanceX", 9, 3, 4, 3, Q("1.35 in")))
sketch9.addConstraint(Sketcher.Constraint("DistanceY", 0, 2, 4, 3, Q("0.175 in")))
sketch9.addConstraint(Sketcher.Constraint("DistanceY", 4, 3, -1, 1, Q("27.452258 mm")))
sketch9.setExpression("Constraints[21]", "Params.sketch9_diameter")
sketch9.setExpression("Constraints[23]", "Params.sketch9_width")
pad3 = body.newObject("PartDesign::Pad", "Pad002")
pad3.Profile = sketch9
pad3.setExpression("Length", "Params.pad3_length")
pad3.Reversed = True

doc.recompute()
